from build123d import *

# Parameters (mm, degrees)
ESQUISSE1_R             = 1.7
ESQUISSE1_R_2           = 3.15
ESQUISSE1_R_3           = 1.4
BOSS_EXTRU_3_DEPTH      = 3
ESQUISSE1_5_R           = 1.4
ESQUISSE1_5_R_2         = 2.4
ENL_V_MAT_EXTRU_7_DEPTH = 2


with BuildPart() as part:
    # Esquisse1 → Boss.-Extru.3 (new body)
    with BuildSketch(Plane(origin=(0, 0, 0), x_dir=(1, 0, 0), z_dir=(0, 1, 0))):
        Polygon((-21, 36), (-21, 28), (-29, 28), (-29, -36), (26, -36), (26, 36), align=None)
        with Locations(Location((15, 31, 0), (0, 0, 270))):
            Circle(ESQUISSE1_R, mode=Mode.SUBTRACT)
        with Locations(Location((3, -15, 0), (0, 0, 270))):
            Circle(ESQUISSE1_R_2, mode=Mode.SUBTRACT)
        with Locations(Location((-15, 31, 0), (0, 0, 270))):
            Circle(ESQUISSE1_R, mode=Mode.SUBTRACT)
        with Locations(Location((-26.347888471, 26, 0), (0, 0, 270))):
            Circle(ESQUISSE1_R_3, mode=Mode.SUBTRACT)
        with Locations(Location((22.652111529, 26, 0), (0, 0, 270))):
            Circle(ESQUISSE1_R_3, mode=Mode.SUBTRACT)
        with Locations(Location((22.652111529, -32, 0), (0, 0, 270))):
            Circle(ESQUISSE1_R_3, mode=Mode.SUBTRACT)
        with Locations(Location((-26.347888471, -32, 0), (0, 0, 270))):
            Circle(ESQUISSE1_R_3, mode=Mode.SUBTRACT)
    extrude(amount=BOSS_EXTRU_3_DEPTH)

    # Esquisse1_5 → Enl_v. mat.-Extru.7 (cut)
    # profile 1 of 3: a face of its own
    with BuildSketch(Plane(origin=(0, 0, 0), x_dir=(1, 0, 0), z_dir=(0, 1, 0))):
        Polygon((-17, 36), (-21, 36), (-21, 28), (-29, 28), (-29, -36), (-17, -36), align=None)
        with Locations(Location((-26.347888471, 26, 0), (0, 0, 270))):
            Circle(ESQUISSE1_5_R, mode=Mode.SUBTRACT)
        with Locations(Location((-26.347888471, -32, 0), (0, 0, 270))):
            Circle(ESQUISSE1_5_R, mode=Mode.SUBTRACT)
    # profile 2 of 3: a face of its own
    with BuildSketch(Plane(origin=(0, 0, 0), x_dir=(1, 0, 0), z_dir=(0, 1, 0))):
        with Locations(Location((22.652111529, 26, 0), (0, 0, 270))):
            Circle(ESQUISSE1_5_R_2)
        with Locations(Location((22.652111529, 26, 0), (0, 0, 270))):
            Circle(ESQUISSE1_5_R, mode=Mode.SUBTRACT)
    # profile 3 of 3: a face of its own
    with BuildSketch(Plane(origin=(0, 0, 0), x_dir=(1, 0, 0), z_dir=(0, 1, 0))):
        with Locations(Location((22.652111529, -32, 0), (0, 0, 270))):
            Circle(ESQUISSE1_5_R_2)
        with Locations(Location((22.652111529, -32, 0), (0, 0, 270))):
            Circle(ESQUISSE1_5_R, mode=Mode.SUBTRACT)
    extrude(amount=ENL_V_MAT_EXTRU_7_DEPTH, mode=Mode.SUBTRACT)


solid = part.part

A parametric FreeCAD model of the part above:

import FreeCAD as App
import Part
import Sketcher


def add_polygon(sketch, points):
    """Adds a closed chain of lines whose ends are joined by coincident constraints."""
    first, n = sketch.GeometryCount, len(points)
    for a, b in zip(points, points[1:] + points[:1]):
        sketch.addGeometry(Part.LineSegment(App.Vector(*a, 0), App.Vector(*b, 0)), False)
    for i in range(n):
        sketch.addConstraint(Sketcher.Constraint("Coincident", first + i, 2, first + (i + 1) % n, 1))

doc = App.newDocument("Part")
body = doc.addObject("PartDesign::Body", "Body")

sketch1 = body.newObject("Sketcher::SketchObject", "Sketch")
sketch1.AttachmentSupport = (doc.getObject("XZ_Plane"), [""])
sketch1.MapMode = "FlatFace"
add_polygon(sketch1, [(-21, -36), (-21, -28), (-29, -28), (-29, 36), (26, 36), (26, -36)])
sketch1.addGeometry(Part.Circle(App.Vector(-26.3, 32, 0), App.Vector(0, 0, 1), 1.4), False)
sketch1.addGeometry(Part.Circle(App.Vector(22.7, 32, 0), App.Vector(0, 0, 1), 1.4), False)
sketch1.addGeometry(Part.Circle(App.Vector(3, 15, 0), App.Vector(0, 0, 1), 3.1), False)
sketch1.addGeometry(Part.Circle(App.Vector(-26.3, -26, 0), App.Vector(0, 0, 1), 1.4), False)
sketch1.addGeometry(Part.Circle(App.Vector(-15, -31, 0), App.Vector(0, 0, 1), 1.7), False)
sketch1.addGeometry(Part.Circle(App.Vector(15, -31, 0), App.Vector(0, 0, 1), 1.7), False)
sketch1.addGeometry(Part.Circle(App.Vector(22.7, -26, 0), App.Vector(0, 0, 1), 1.4), False)
sketch1.addConstraint([
    Sketcher.Constraint("Vertical", 0),
    Sketcher.Constraint("Horizontal", 1),
    Sketcher.Constraint("Vertical", 2),
    Sketcher.Constraint("Horizontal", 3),
    Sketcher.Constraint("Vertical", 4),
    Sketcher.Constraint("Horizontal", 5),
    Sketcher.Constraint("Equal", 6, 7),
    Sketcher.Constraint("Equal", 7, 9),
    Sketcher.Constraint("Equal", 10, 11),
    Sketcher.Constraint("Equal", 9, 12),
    Sketcher.Constraint("Symmetric", 10, 3, 11, 3, -2),
    Sketcher.Constraint("Horizontal", 6, 3, 7, 3),
    Sketcher.Constraint("Horizontal", 9, 3, 12, 3),
    Sketcher.Constraint("Vertical", 6, 3, 9, 3),
    Sketcher.Constraint("Vertical", 7, 3, 12, 3),
    Sketcher.Constraint("Equal", 1, 0),
    Sketcher.Constraint("Diameter", 6, 2.8),
    Sketcher.Constraint("Diameter", 8, 6.3),
    Sketcher.Constraint("Diameter", 10, 3.4),
    Sketcher.Constraint("DistanceX", 1, 2, 1, 1, 8.0),
    Sketcher.Constraint("DistanceX", 3, 1, 3, 2, 55.0),
    Sketcher.Constraint("DistanceY", 2, 1, 2, 2, 64.0),
    Sketcher.Constraint("DistanceY", -1, 1, 6, 3, 32.0),
    Sketcher.Constraint("DistanceX", -1, 1, 8, 3, 3.0),
    Sketcher.Constraint("DistanceY", -1, 1, 8, 3, 15.0),
    Sketcher.Constraint("DistanceY", 9, 3, -1, 1, 26.0),
    Sketcher.Constraint("DistanceX", 10, 3, -1, 1, 15.0),
    Sketcher.Constraint("DistanceY", 10, 3, -1, 1, 31.0),
    Sketcher.Constraint("DistanceX", 0, 2, -1, 1, 21.0),
    Sketcher.Constraint("DistanceY", 0, 2, -1, 1, 28.0),
    Sketcher.Constraint("DistanceX", 6, 3, 7, 3, 49.0),
    Sketcher.Constraint("DistanceX", 6, 3, -1, 1, 26.347888),
])
pad1 = body.newObject("PartDesign::Pad", "Pad")
pad1.Profile = sketch1
pad1.Length = 3
pad1.Reversed = True

sketch2 = body.newObject("Sketcher::SketchObject", "Sketch001")
sketch2.AttachmentSupport = (doc.getObject("XZ_Plane"), [""])
sketch2.MapMode = "FlatFace"
add_polygon(sketch2, [(-17, -36), (-21, -36), (-21, -28), (-29, -28), (-29, 36), (-17, 36)])
sketch2.addGeometry(Part.Circle(App.Vector(-26.3, 32, 0), App.Vector(0, 0, 1), 1.4), False)
sketch2.addGeometry(Part.Circle(App.Vector(-26.3, -26, 0), App.Vector(0, 0, 1), 1.4), False)
sketch2.addGeometry(Part.Circle(App.Vector(22.7, -26, 0), App.Vector(0, 0, 1), 2.4), False)
sketch2.addGeometry(Part.Circle(App.Vector(22.7, -26, 0), App.Vector(0, 0, 1), 1.4), False)
sketch2.addGeometry(Part.Circle(App.Vector(22.7, 32, 0), App.Vector(0, 0, 1), 2.4), False)
sketch2.addGeometry(Part.Circle(App.Vector(22.7, 32, 0), App.Vector(0, 0, 1), 1.4), False)
sketch2.addConstraint([
    Sketcher.Constraint("Horizontal", 0),
    Sketcher.Constraint("Vertical", 1),
    Sketcher.Constraint("Horizontal", 2),
    Sketcher.Constraint("Vertical", 3),
    Sketcher.Constraint("Horizontal", 4),
    Sketcher.Constraint("Vertical", 5),
    Sketcher.Constraint("Coincident", 9, 3, 8, 3),
    Sketcher.Constraint("Coincident", 11, 3, 10, 3),
    Sketcher.Constraint("Equal", 6, 7),
    Sketcher.Constraint("Equal", 7, 9),
    Sketcher.Constraint("Equal", 8, 10),
    Sketcher.Constraint("Equal", 9, 11),
    Sketcher.Constraint("Horizontal", 7, 3, 8, 3),
    Sketcher.Constraint("Horizontal", 6, 3, 10, 3),
    Sketcher.Constraint("Vertical", 6, 3, 7, 3),
    Sketcher.Constraint("Vertical", 9, 3, 10, 3),
    Sketcher.Constraint("Equal", 2, 1),
    Sketcher.Constraint("Diameter", 6, 2.8),
    Sketcher.Constraint("Diameter", 8, 4.8),
    Sketcher.Constraint("DistanceX", 0, 2, 0, 1, 4.0),
    Sketcher.Constraint("DistanceX", 2, 2, 2, 1, 8.0),
    Sketcher.Constraint("DistanceY", 3, 1, 3, 2, 64.0),
    Sketcher.Constraint("DistanceY", -1, 1, 6, 3, 32.0),
    Sketcher.Constraint("DistanceY", 7, 3, -1, 1, 26.0),
    Sketcher.Constraint("DistanceX", 0, 2, -1, 1, 21.0),
    Sketcher.Constraint("DistanceY", 0, 2, -1, 1, 36.0),
    Sketcher.Constraint("DistanceX", 7, 3, 8, 3, 49.0),
    Sketcher.Constraint("DistanceX", 6, 3, -1, 1, 26.347888),
])
pocket1 = body.newObject("PartDesign::Pocket", "Pocket")
pocket1.Profile = sketch2
pocket1.Length = 2

doc.recompute()
